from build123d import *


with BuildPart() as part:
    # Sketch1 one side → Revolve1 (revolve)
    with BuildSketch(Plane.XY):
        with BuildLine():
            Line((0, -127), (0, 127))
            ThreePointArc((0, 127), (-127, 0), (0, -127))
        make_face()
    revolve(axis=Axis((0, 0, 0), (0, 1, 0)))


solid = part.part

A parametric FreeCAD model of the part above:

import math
import FreeCAD as App
import Part
import Sketcher
from FreeCAD import Vector
Q = App.Units.Quantity

doc = App.newDocument("Part")
params = doc.addObject("Spreadsheet::Sheet", "Params")
for row, (alias, value) in enumerate([
    ("sketch1_radius", "5 in"),
    ("revolution_angle", "360 deg"),
], start=1):
    params.set(f"A{row}", alias)
    params.set(f"B{row}", "=" + value)
    params.setAlias(f"B{row}", alias)

body = doc.addObject("PartDesign::Body", "Body")

sketch1 = doc.addObject("Sketcher::SketchObject", "Sketch")
body.addObject(sketch1)
sketch1.AttachmentSupport = (doc.XY_Plane, [""])
sketch1.MapMode = "FlatFace"
sketch1.addGeometry([
    Part.LineSegment(Vector(0, -127, 0), Vector(0, 127, 0)),
    Part.ArcOfCircle(Part.Circle(Vector(0, 0, 0), Vector(0, 0, 1), 127), math.radians(90), math.radians(270)),
], False)
sketch1.addConstraint([
    Sketcher.Constraint("Coincident", 0, 1, 1, 2),
    Sketcher.Constraint("Coincident", 1, 1, 0, 2),
    Sketcher.Constraint("Vertical", 0),
    Sketcher.Constraint("Coincident", 1, 3, -1, 1),
    Sketcher.Constraint("PointOnObject", 0, 1, -2),
    Sketcher.Constraint("Radius", 1, Q("5 in")),
])
sketch1.setExpression("Constraints[5]", "Params.sketch1_radius")
revolution = doc.addObject("PartDesign::Revolution", "Revolution")
body.addObject(revolution)
revolution.Profile = sketch1
revolution.ReferenceAxis = (sketch1, ["V_Axis"])
revolution.setExpression("Angle", "Params.revolution_angle")

doc.recompute()
